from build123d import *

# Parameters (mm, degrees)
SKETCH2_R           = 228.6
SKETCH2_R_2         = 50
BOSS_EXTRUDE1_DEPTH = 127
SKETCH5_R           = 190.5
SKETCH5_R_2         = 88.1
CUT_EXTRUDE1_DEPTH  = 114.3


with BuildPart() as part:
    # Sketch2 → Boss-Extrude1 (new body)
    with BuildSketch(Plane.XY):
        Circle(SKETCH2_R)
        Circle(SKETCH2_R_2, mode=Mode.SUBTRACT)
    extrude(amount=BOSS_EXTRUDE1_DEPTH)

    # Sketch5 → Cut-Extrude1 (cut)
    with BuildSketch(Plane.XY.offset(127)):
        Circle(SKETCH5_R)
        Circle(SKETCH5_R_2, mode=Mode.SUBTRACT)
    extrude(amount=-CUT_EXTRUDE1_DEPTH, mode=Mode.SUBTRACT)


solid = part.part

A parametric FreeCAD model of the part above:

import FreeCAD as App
import Part
import Sketcher
from FreeCAD import Vector
Q = App.Units.Quantity

doc = App.newDocument("Part")
body = doc.addObject("PartDesign::Body", "Body")

sketch1 = body.newObject("Sketcher::SketchObject", "Sketch")
sketch1.AttachmentSupport = (doc.getObject("XY_Plane"), [""])
sketch1.MapMode = "FlatFace"
sketch1.addGeometry(Part.Circle(Vector(0, 0, 0), Vector(0, 0, 1), 228.6), False)
sketch1.addGeometry(Part.Circle(Vector(0, 0, 0), Vector(0, 0, 1), 50), False)
sketch1.addConstraint(Sketcher.Constraint("Coincident", 0, 3, -1, 1))
sketch1.addConstraint(Sketcher.Constraint("Coincident", 1, 3, -1, 1))
sketch1.addConstraint(Sketcher.Constraint("Diameter", 0, Q("18 in")))
sketch1.addConstraint(Sketcher.Constraint("Diameter", 1, Q("100 mm")))
pad1 = body.newObject("PartDesign::Pad", "Pad")
pad1.Profile = sketch1
pad1.Length = Q("5 in")

sketch2 = body.newObject("Sketcher::SketchObject", "Sketch001")
sketch2.AttachmentSupport = (doc.getObject("XY_Plane"), [""])
sketch2.MapMode = "FlatFace"
sketch2.AttachmentOffset = App.Placement(Vector(0, 0, 5 * 25.4), App.Rotation())
sketch2.addGeometry(Part.Circle(Vector(0, 0, 0), Vector(0, 0, 1), 190.5), False)
sketch2.addGeometry(Part.Circle(Vector(0, 0, 0), Vector(0, 0, 1), 88.1), False)
sketch2.addConstraint(Sketcher.Constraint("Coincident", 0, 3, -1, 1))
sketch2.addConstraint(Sketcher.Constraint("Coincident", 1, 3, -1, 1))
sketch2.addConstraint(Sketcher.Constraint("Diameter", 0, Q("15 in")))
sketch2.addConstraint(Sketcher.Constraint("Diameter", 1, Q("176.2 mm")))
pocket1 = body.newObject("PartDesign::Pocket", "Pocket")
pocket1.Profile = sketch2
pocket1.Length = Q("4.5 in")

doc.recompute()
